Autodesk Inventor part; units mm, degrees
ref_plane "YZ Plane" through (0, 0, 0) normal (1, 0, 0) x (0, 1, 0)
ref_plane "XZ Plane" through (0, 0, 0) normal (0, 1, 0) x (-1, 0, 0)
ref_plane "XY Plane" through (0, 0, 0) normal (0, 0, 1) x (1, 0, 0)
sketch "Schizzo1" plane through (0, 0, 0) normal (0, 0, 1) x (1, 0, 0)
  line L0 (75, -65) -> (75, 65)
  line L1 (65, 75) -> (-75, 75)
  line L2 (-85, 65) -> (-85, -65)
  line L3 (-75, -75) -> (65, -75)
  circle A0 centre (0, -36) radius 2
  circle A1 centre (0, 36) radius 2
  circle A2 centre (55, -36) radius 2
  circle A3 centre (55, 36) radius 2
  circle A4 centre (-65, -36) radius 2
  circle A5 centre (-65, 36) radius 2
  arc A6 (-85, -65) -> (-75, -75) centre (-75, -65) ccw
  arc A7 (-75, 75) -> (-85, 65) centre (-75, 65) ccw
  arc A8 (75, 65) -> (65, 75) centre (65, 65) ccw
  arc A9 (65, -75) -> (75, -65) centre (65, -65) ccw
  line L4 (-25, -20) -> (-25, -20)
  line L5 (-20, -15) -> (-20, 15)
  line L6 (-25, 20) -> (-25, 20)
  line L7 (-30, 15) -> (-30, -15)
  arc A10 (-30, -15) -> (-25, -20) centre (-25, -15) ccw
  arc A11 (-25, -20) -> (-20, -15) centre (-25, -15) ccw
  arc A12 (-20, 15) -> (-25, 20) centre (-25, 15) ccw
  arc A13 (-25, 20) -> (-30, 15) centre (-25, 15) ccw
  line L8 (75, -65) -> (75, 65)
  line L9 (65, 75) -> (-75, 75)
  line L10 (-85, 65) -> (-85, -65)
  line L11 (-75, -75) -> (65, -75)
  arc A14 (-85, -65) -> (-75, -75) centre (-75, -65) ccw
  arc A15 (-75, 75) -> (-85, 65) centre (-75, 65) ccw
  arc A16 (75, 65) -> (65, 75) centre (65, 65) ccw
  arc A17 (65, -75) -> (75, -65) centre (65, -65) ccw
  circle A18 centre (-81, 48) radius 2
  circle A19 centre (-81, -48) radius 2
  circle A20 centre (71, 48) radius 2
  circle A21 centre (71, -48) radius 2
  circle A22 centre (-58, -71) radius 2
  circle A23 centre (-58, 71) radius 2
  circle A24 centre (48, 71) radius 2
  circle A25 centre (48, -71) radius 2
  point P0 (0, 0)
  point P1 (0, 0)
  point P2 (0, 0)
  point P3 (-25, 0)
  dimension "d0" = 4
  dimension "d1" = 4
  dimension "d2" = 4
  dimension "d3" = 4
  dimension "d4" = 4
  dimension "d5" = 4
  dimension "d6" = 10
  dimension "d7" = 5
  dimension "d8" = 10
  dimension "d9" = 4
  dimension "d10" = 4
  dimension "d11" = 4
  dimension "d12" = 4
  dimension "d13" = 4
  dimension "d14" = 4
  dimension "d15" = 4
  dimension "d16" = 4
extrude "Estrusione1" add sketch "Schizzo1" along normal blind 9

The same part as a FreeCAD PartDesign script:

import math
import FreeCAD as App
import Part
import Sketcher

V = App.Vector
Q = App.Units.Quantity

doc = App.newDocument("Part")
body = doc.addObject("PartDesign::Body", "Body")

sketch1 = body.newObject("Sketcher::SketchObject", "Sketch")
sketch1.AttachmentSupport = (doc.getObject("XY_Plane"), [""])
sketch1.MapMode = "FlatFace"
sketch1.addGeometry([
    Part.ArcOfCircle(Part.Circle(V(65, -65, 0), V(0, 0, 1), 10), math.radians(-90), math.radians(0)),
    Part.LineSegment(V(75, -65, 0), V(75, 65, 0)),
    Part.ArcOfCircle(Part.Circle(V(65, 65, 0), V(0, 0, 1), 10), math.radians(0), math.radians(90)),
    Part.LineSegment(V(65, 75, 0), V(-75, 75, 0)),
    Part.ArcOfCircle(Part.Circle(V(-75, 65, 0), V(0, 0, 1), 10), math.radians(90), math.radians(180)),
    Part.LineSegment(V(-85, 65, 0), V(-85, -65, 0)),
    Part.ArcOfCircle(Part.Circle(V(-75, -65, 0), V(0, 0, 1), 10), math.radians(180), math.radians(270)),
    Part.LineSegment(V(-75, -75, 0), V(65, -75, 0)),
    Part.Circle(V(-58, -71, 0), V(0, 0, 1), 2),
    Part.Circle(V(-81, -48, 0), V(0, 0, 1), 2),
    Part.Circle(V(-65, -36, 0), V(0, 0, 1), 2),
    Part.Circle(V(48, -71, 0), V(0, 0, 1), 2),
    Part.Circle(V(71, -48, 0), V(0, 0, 1), 2),
    Part.Circle(V(0, -36, 0), V(0, 0, 1), 2),
    Part.Circle(V(55, -36, 0), V(0, 0, 1), 2),
    Part.Circle(V(-65, 36, 0), V(0, 0, 1), 2),
    Part.LineSegment(V(-20, 15, 0), V(-20, -15, 0)),
    Part.ArcOfCircle(Part.Circle(V(-25, -15, 0), V(0, 0, 1), 5), math.radians(180), math.radians(360)),
    Part.LineSegment(V(-30, -15, 0), V(-30, 15, 0)),
    Part.ArcOfCircle(Part.Circle(V(-25, 15, 0), V(0, 0, 1), 5), math.radians(0), math.radians(180)),
    Part.Circle(V(-81, 48, 0), V(0, 0, 1), 2),
    Part.Circle(V(-58, 71, 0), V(0, 0, 1), 2),
    Part.Circle(V(0, 36, 0), V(0, 0, 1), 2),
    Part.Circle(V(55, 36, 0), V(0, 0, 1), 2),
    Part.Circle(V(71, 48, 0), V(0, 0, 1), 2),
    Part.Circle(V(48, 71, 0), V(0, 0, 1), 2),
], False)
sketch1.addConstraint([
    Sketcher.Constraint("Tangent", 0, 2, 1, 1),
    Sketcher.Constraint("Tangent", 1, 2, 2, 1),
    Sketcher.Constraint("Tangent", 2, 2, 3, 1),
    Sketcher.Constraint("Tangent", 3, 2, 4, 1),
    Sketcher.Constraint("Tangent", 4, 2, 5, 1),
    Sketcher.Constraint("Tangent", 5, 2, 6, 1),
    Sketcher.Constraint("Tangent", 6, 2, 7, 1),
    Sketcher.Constraint("Tangent", 7, 2, 0, 1),
    Sketcher.Constraint("Tangent", 16, 2, 17, 2),
    Sketcher.Constraint("Tangent", 17, 1, 18, 1),
    Sketcher.Constraint("Tangent", 18, 2, 19, 2),
    Sketcher.Constraint("Tangent", 19, 1, 16, 1),
    Sketcher.Constraint("Vertical", 1),
    Sketcher.Constraint("Horizontal", 3),
    Sketcher.Constraint("Vertical", 5),
    Sketcher.Constraint("Horizontal", 7),
    Sketcher.Constraint("Vertical", 16),
    Sketcher.Constraint("Vertical", 18),
    Sketcher.Constraint("Equal", 0, 2),
    Sketcher.Constraint("Equal", 2, 4),
    Sketcher.Constraint("Equal", 4, 6),
    Sketcher.Constraint("Equal", 8, 9),
    Sketcher.Constraint("Equal", 9, 10),
    Sketcher.Constraint("Equal", 10, 11),
    Sketcher.Constraint("Equal", 11, 12),
    Sketcher.Constraint("Equal", 12, 13),
    Sketcher.Constraint("Equal", 13, 14),
    Sketcher.Constraint("Equal", 14, 15),
    Sketcher.Constraint("Equal", 15, 20),
    Sketcher.Constraint("Equal", 20, 21),
    Sketcher.Constraint("Equal", 21, 22),
    Sketcher.Constraint("Equal", 22, 23),
    Sketcher.Constraint("Equal", 23, 24),
    Sketcher.Constraint("Equal", 24, 25),
    Sketcher.Constraint("Symmetric", 13, 3, 22, 3, -1, 1),
    Sketcher.Constraint("Symmetric", 10, 3, 15, 3, -1),
    Sketcher.Constraint("Symmetric", 9, 3, 20, 3, -1),
    Sketcher.Constraint("Symmetric", 8, 3, 21, 3, -1),
    Sketcher.Constraint("Symmetric", 14, 3, 23, 3, -1),
    Sketcher.Constraint("Symmetric", 12, 3, 24, 3, -1),
    Sketcher.Constraint("Symmetric", 11, 3, 25, 3, -1),
    Sketcher.Constraint("PointOnObject", 13, 3, -2),
    Sketcher.Constraint("Horizontal", 8, 3, 11, 3),
    Sketcher.Constraint("Horizontal", 9, 3, 12, 3),
    Sketcher.Constraint("Horizontal", 10, 3, 13, 3),
    Sketcher.Constraint("Horizontal", 13, 3, 14, 3),
    Sketcher.Constraint("Diameter", 8, Q("4 mm")),
    Sketcher.Constraint("Radius", 0, Q("10 mm")),
    Sketcher.Constraint("Radius", 17, Q("5 mm")),
    Sketcher.Constraint("DistanceX", 6, 3, 10, 3, Q("10 mm")),
    Sketcher.Constraint("DistanceX", 14, 3, 0, 3, Q("10 mm")),
    Sketcher.Constraint("DistanceX", 12, 3, 0, 2, Q("4 mm")),
    Sketcher.Constraint("DistanceY", 25, 3, 2, 2, Q("4 mm")),
    Sketcher.Constraint("DistanceX", 4, 2, 20, 3, Q("4 mm")),
    Sketcher.Constraint("DistanceY", 6, 2, 8, 3, Q("4 mm")),
    Sketcher.Constraint("DistanceX", 3, 2, 3, 1, Q("140 mm")),
    Sketcher.Constraint("DistanceY", 1, 1, 1, 2, Q("130 mm")),
    Sketcher.Constraint("DistanceY", 16, 2, 16, 1, Q("30 mm")),
    Sketcher.Constraint("DistanceX", -1, 1, 0, 3, Q("65 mm")),
    Sketcher.Constraint("DistanceX", 8, 3, -1, 1, Q("58 mm")),
    Sketcher.Constraint("DistanceY", 9, 3, -1, 1, Q("48 mm")),
    Sketcher.Constraint("DistanceY", 10, 3, -1, 1, Q("36 mm")),
    Sketcher.Constraint("DistanceX", -1, 1, 11, 3, Q("48 mm")),
    Sketcher.Constraint("DistanceX", 17, 3, -1, 1, Q("25 mm")),
    Sketcher.Constraint("DistanceY", 17, 3, -1, 1, Q("15 mm")),
])
pad1 = body.newObject("PartDesign::Pad", "Pad")
pad1.Profile = sketch1
pad1.Length = 9

doc.recompute()
